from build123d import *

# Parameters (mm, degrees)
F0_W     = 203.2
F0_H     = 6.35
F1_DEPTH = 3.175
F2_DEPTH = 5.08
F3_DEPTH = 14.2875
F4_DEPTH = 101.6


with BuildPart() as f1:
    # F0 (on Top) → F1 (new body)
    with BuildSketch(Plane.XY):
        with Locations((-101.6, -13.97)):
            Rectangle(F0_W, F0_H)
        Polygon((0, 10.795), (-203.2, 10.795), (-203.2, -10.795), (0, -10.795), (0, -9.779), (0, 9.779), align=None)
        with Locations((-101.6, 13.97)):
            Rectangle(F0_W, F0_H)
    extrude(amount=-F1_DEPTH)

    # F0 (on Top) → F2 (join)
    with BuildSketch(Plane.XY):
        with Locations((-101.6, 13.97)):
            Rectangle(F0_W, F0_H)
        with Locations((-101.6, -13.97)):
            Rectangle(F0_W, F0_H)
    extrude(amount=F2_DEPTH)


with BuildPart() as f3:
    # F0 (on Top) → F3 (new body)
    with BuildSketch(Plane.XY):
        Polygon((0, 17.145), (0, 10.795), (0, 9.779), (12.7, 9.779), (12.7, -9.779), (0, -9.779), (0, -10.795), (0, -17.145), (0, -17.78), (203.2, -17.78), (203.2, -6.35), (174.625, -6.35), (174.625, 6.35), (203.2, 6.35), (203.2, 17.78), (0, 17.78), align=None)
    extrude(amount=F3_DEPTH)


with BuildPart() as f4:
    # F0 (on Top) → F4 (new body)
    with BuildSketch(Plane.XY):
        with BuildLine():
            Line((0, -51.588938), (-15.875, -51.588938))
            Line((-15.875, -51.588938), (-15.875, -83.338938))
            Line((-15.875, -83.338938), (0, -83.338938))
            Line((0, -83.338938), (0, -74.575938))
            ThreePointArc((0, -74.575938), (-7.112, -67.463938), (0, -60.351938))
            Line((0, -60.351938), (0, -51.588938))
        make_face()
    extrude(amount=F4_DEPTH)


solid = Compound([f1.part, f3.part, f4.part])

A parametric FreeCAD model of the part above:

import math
import FreeCAD as App
import Part
import Sketcher

V = App.Vector
Q = App.Units.Quantity


def add_polygon(sketch, points):
    """Adds a closed chain of lines whose ends are joined by coincident constraints."""
    first, n = sketch.GeometryCount, len(points)
    for a, b in zip(points, points[1:] + points[:1]):
        sketch.addGeometry(Part.LineSegment(App.Vector(*a, 0), App.Vector(*b, 0)), False)
    for i in range(n):
        sketch.addConstraint(Sketcher.Constraint("Coincident", first + i, 2, first + (i + 1) % n, 1))

doc = App.newDocument("Part")
body = doc.addObject("PartDesign::Body", "Body")

# Sketch on XY plane
sketch1 = body.newObject("Sketcher::SketchObject", "Sketch")
sketch1.AttachmentSupport = (doc.getObject("XY_Plane"), [""])
sketch1.MapMode = "FlatFace"
add_polygon(sketch1, [(-203, -17), (0, -17), (0, 17), (-203, 17)])  # lines 0-3
sketch1.addConstraint([
    Sketcher.Constraint("Horizontal", 0),
    Sketcher.Constraint("Vertical", 1),
    Sketcher.Constraint("Horizontal", 2),
    Sketcher.Constraint("Vertical", 3),
    Sketcher.Constraint("Symmetric", 0, 2, 1, 2, -1, 1),
    Sketcher.Constraint("DistanceX", 0, 1, 0, 2, Q("8 in")),
    Sketcher.Constraint("DistanceY", 1, 1, 1, 2, Q("1.35 in")),
])
pad1 = body.newObject("PartDesign::Pad", "Pad")
pad1.Profile = sketch1
pad1.Length = Q("0.125 in")
pad1.Reversed = True

# Sketch on XY plane
sketch2 = body.newObject("Sketcher::SketchObject", "Sketch001")
sketch2.AttachmentSupport = (doc.getObject("XY_Plane"), [""])
sketch2.MapMode = "FlatFace"
add_polygon(sketch2, [(-203, 17), (-203, 11), (0, 11), (0, 17)])  # lines 0-3
add_polygon(sketch2, [(-203, -11), (-203, -17), (0, -17), (0, -11)])  # lines 4-7
sketch2.addConstraint([
    Sketcher.Constraint("Vertical", 0),
    Sketcher.Constraint("Horizontal", 1),
    Sketcher.Constraint("Vertical", 2),
    Sketcher.Constraint("Horizontal", 3),
    Sketcher.Constraint("Vertical", 4),
    Sketcher.Constraint("Horizontal", 5),
    Sketcher.Constraint("Vertical", 6),
    Sketcher.Constraint("Horizontal", 7),
    Sketcher.Constraint("Symmetric", 2, 2, 5, 2, -1, 1),
    Sketcher.Constraint("Symmetric", 1, 2, 6, 2, -1),
    Sketcher.Constraint("Vertical", 3, 2, 4, 2),
    Sketcher.Constraint("DistanceX", 1, 1, 1, 2, Q("8 in")),
    Sketcher.Constraint("DistanceY", 0, 2, 0, 1, Q("0.25 in")),
    Sketcher.Constraint("DistanceY", 4, 2, 0, 2, Q("1.1 in")),
])
pad2 = body.newObject("PartDesign::Pad", "Pad001")
pad2.Profile = sketch2
pad2.Length = Q("0.2 in")
body2 = doc.addObject("PartDesign::Body", "Body001")

# Sketch on XY plane
sketch3 = body2.newObject("Sketcher::SketchObject", "Sketch002")
sketch3.AttachmentSupport = (doc.getObject("XY_Plane001"), [""])
sketch3.MapMode = "FlatFace"
add_polygon(sketch3, [(0, 10), (13, 10), (13, -10), (0, -10), (0, -18), (203, -18), (203, -6), (175, -6), (175, 6), (203, 6), (203, 18), (0, 18)])  # lines 0-11
sketch3.addConstraint([
    Sketcher.Constraint("Horizontal", 0),
    Sketcher.Constraint("Vertical", 1),
    Sketcher.Constraint("Horizontal", 2),
    Sketcher.Constraint("Vertical", 3),
    Sketcher.Constraint("Horizontal", 4),
    Sketcher.Constraint("Vertical", 5),
    Sketcher.Constraint("Horizontal", 6),
    Sketcher.Constraint("Vertical", 7),
    Sketcher.Constraint("Horizontal", 8),
    Sketcher.Constraint("Vertical", 9),
    Sketcher.Constraint("Horizontal", 10),
    Sketcher.Constraint("Vertical", 11),
    Sketcher.Constraint("Symmetric", 3, 2, 10, 2, -1, 1),
    Sketcher.Constraint("Symmetric", 5, 2, 8, 2, -1),
    Sketcher.Constraint("Symmetric", 2, 2, 11, 2, -1),
    Sketcher.Constraint("Equal", 2, 7),
    Sketcher.Constraint("DistanceX", 4, 1, 4, 2, Q("8 in")),
    Sketcher.Constraint("DistanceX", 0, 1, 0, 2, Q("0.5 in")),
    Sketcher.Constraint("DistanceY", 1, 2, 1, 1, Q("0.77 in")),
    Sketcher.Constraint("DistanceY", 5, 1, 5, 2, Q("0.45 in")),
    Sketcher.Constraint("DistanceX", 6, 2, 6, 1, Q("1.125 in")),
])
pad3 = body2.newObject("PartDesign::Pad", "Pad002")
pad3.Profile = sketch3
pad3.Length = Q("0.5625 in")
body3 = doc.addObject("PartDesign::Body", "Body002")

# Sketch on XY plane
sketch4 = body3.newObject("Sketcher::SketchObject", "Sketch003")
sketch4.AttachmentSupport = (doc.getObject("XY_Plane002"), [""])
sketch4.MapMode = "FlatFace"
sketch4.addGeometry([
    Part.LineSegment(V(0, -52, 0), V(-16, -52, 0)),  # 0
    Part.LineSegment(V(-16, -52, 0), V(-16, -83, 0)),  # 1
    Part.LineSegment(V(-16, -83, 0), V(0, -83, 0)),  # 2
    Part.LineSegment(V(0, -83, 0), V(0, -75, 0)),  # 3
    Part.ArcOfCircle(Part.Circle(V(0, -67, 0), V(0, 0, 1), 7), math.radians(90), math.radians(270)),  # 4
    Part.LineSegment(V(0, -60, 0), V(0, -52, 0)),  # 5
], False)
sketch4.addConstraint([
    Sketcher.Constraint("Coincident", 0, 2, 1, 1),
    Sketcher.Constraint("Coincident", 1, 2, 2, 1),
    Sketcher.Constraint("Coincident", 2, 2, 3, 1),
    Sketcher.Constraint("Coincident", 3, 2, 4, 2),
    Sketcher.Constraint("Coincident", 4, 1, 5, 1),
    Sketcher.Constraint("Coincident", 5, 2, 0, 1),
    Sketcher.Constraint("Horizontal", 0),
    Sketcher.Constraint("Vertical", 1),
    Sketcher.Constraint("Horizontal", 2),
    Sketcher.Constraint("Vertical", 3),
    Sketcher.Constraint("Vertical", 5),
    Sketcher.Constraint("PointOnObject", 4, 3, -2),
    Sketcher.Constraint("PointOnObject", 2, 2, -2),
    Sketcher.Constraint("PointOnObject", 4, 1, -2),
    Sketcher.Constraint("Equal", 3, 5),
    Sketcher.Constraint("Radius", 4, Q("0.28 in")),
    Sketcher.Constraint("DistanceY", 1, 2, 1, 1, Q("1.25 in")),
    Sketcher.Constraint("DistanceX", 0, 2, 0, 1, Q("0.625 in")),
    Sketcher.Constraint("DistanceY", 4, 3, -1, 1, 67.463938),
])
pad4 = body3.newObject("PartDesign::Pad", "Pad003")
pad4.Profile = sketch4
pad4.Length = Q("4 in")

doc.recompute()
